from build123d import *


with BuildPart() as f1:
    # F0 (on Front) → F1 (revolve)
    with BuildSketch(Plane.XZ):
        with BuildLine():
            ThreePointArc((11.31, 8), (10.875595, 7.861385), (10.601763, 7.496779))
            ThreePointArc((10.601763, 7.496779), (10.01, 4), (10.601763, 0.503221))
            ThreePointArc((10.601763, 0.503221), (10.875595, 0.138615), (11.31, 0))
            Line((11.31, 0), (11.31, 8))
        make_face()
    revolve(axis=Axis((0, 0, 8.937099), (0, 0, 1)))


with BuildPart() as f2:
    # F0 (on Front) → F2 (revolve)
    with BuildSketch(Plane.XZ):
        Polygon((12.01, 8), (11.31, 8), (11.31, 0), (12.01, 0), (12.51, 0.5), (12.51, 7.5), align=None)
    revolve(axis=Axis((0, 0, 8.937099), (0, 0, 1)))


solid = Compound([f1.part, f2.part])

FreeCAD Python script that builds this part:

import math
import FreeCAD as App
import Part
import Sketcher


def add_polygon(sketch, points):
    """Adds a closed chain of lines whose ends are joined by coincident constraints."""
    first, n = sketch.GeometryCount, len(points)
    for a, b in zip(points, points[1:] + points[:1]):
        sketch.addGeometry(Part.LineSegment(App.Vector(*a, 0), App.Vector(*b, 0)), False)
    for i in range(n):
        sketch.addConstraint(Sketcher.Constraint("Coincident", first + i, 2, first + (i + 1) % n, 1))

doc = App.newDocument("Part")
body = doc.addObject("PartDesign::Body", "Body")

# Sketch on XZ plane
sketch1 = body.newObject("Sketcher::SketchObject", "Sketch")
sketch1.AttachmentSupport = (doc.getObject("XZ_Plane"), [""])
sketch1.MapMode = "FlatFace"
sketch1.addGeometry(Part.ArcOfCircle(Part.Circle(App.Vector(11.3, 7.2, 0), App.Vector(0, 0, 1), 0.8), math.radians(90), math.radians(161)), False)
sketch1.addGeometry(Part.ArcOfCircle(Part.Circle(App.Vector(20.6, 4, 0), App.Vector(0, 0, 1), 10.6), math.radians(161), math.radians(199)), False)
sketch1.addGeometry(Part.ArcOfCircle(Part.Circle(App.Vector(11.3, 0.8, 0), App.Vector(0, 0, 1), 0.8), math.radians(-161), math.radians(-90)), False)
sketch1.addGeometry(Part.LineSegment(App.Vector(11.3, 0, 0), App.Vector(11.3, 8, 0)), False)
sketch1.addConstraint(Sketcher.Constraint("Tangent", 0, 2, 1, 1))
sketch1.addConstraint(Sketcher.Constraint("Tangent", 1, 2, 2, 1))
sketch1.addConstraint(Sketcher.Constraint("Coincident", 2, 2, 3, 1))
sketch1.addConstraint(Sketcher.Constraint("Coincident", 3, 2, 0, 1))
sketch1.addConstraint(Sketcher.Constraint("Vertical", 3))
sketch1.addConstraint(Sketcher.Constraint("Equal", 0, 2))
sketch1.addConstraint(Sketcher.Constraint("PointOnObject", 2, 2, -1))
sketch1.addConstraint(Sketcher.Constraint("Vertical", 0, 3, 2, 3))
sketch1.addConstraint(Sketcher.Constraint("Vertical", 0, 3, 2, 2))
sketch1.addConstraint(Sketcher.Constraint("DistanceY", 3, 1, 3, 2, 8.0))
sketch1.addConstraint(Sketcher.Constraint("Radius", 0, 0.750001))
sketch1.addConstraint(Sketcher.Constraint("DistanceX", -1, 1, 0, 3, 11.310001))
sketch1.addConstraint(Sketcher.Constraint("Radius", 1, 10.627267))
revolution = body.newObject("PartDesign::Revolution", "Revolution")
revolution.Profile = sketch1
revolution.ReferenceAxis = (sketch1, ["V_Axis"])
revolution.Angle = 360
body2 = doc.addObject("PartDesign::Body", "Body001")

# Sketch on XZ plane
sketch2 = body2.newObject("Sketcher::SketchObject", "Sketch001")
sketch2.AttachmentSupport = (doc.getObject("XZ_Plane001"), [""])
sketch2.MapMode = "FlatFace"
add_polygon(sketch2, [(12, 8), (11.3, 8), (11.3, 0), (12, 0), (12.5, 0.5), (12.5, 7.5)])  # lines 0-5
sketch2.addConstraint(Sketcher.Constraint("Horizontal", 0))
sketch2.addConstraint(Sketcher.Constraint("Vertical", 1))
sketch2.addConstraint(Sketcher.Constraint("Horizontal", 2))
sketch2.addConstraint(Sketcher.Constraint("Vertical", 4))
sketch2.addConstraint(Sketcher.Constraint("PointOnObject", 1, 2, -1))
sketch2.addConstraint(Sketcher.Constraint("Perpendicular", 3, 5))
sketch2.addConstraint(Sketcher.Constraint("Vertical", 2, 2, 5, 2))
sketch2.addConstraint(Sketcher.Constraint("Equal", 3, 5))
sketch2.addConstraint(Sketcher.Constraint("DistanceY", 1, 2, 1, 1, 8.0))
sketch2.addConstraint(Sketcher.Constraint("DistanceY", 4, 1, 4, 2, 7.0))
sketch2.addConstraint(Sketcher.Constraint("DistanceX", 0, 2, 0, 1, 0.7))
sketch2.addConstraint(Sketcher.Constraint("DistanceX", -1, 1, 0, 2, 11.31))
revolution2 = body2.newObject("PartDesign::Revolution", "Revolution001")
revolution2.Profile = sketch2
revolution2.ReferenceAxis = (sketch2, ["V_Axis"])
revolution2.Angle = 360

doc.recompute()
